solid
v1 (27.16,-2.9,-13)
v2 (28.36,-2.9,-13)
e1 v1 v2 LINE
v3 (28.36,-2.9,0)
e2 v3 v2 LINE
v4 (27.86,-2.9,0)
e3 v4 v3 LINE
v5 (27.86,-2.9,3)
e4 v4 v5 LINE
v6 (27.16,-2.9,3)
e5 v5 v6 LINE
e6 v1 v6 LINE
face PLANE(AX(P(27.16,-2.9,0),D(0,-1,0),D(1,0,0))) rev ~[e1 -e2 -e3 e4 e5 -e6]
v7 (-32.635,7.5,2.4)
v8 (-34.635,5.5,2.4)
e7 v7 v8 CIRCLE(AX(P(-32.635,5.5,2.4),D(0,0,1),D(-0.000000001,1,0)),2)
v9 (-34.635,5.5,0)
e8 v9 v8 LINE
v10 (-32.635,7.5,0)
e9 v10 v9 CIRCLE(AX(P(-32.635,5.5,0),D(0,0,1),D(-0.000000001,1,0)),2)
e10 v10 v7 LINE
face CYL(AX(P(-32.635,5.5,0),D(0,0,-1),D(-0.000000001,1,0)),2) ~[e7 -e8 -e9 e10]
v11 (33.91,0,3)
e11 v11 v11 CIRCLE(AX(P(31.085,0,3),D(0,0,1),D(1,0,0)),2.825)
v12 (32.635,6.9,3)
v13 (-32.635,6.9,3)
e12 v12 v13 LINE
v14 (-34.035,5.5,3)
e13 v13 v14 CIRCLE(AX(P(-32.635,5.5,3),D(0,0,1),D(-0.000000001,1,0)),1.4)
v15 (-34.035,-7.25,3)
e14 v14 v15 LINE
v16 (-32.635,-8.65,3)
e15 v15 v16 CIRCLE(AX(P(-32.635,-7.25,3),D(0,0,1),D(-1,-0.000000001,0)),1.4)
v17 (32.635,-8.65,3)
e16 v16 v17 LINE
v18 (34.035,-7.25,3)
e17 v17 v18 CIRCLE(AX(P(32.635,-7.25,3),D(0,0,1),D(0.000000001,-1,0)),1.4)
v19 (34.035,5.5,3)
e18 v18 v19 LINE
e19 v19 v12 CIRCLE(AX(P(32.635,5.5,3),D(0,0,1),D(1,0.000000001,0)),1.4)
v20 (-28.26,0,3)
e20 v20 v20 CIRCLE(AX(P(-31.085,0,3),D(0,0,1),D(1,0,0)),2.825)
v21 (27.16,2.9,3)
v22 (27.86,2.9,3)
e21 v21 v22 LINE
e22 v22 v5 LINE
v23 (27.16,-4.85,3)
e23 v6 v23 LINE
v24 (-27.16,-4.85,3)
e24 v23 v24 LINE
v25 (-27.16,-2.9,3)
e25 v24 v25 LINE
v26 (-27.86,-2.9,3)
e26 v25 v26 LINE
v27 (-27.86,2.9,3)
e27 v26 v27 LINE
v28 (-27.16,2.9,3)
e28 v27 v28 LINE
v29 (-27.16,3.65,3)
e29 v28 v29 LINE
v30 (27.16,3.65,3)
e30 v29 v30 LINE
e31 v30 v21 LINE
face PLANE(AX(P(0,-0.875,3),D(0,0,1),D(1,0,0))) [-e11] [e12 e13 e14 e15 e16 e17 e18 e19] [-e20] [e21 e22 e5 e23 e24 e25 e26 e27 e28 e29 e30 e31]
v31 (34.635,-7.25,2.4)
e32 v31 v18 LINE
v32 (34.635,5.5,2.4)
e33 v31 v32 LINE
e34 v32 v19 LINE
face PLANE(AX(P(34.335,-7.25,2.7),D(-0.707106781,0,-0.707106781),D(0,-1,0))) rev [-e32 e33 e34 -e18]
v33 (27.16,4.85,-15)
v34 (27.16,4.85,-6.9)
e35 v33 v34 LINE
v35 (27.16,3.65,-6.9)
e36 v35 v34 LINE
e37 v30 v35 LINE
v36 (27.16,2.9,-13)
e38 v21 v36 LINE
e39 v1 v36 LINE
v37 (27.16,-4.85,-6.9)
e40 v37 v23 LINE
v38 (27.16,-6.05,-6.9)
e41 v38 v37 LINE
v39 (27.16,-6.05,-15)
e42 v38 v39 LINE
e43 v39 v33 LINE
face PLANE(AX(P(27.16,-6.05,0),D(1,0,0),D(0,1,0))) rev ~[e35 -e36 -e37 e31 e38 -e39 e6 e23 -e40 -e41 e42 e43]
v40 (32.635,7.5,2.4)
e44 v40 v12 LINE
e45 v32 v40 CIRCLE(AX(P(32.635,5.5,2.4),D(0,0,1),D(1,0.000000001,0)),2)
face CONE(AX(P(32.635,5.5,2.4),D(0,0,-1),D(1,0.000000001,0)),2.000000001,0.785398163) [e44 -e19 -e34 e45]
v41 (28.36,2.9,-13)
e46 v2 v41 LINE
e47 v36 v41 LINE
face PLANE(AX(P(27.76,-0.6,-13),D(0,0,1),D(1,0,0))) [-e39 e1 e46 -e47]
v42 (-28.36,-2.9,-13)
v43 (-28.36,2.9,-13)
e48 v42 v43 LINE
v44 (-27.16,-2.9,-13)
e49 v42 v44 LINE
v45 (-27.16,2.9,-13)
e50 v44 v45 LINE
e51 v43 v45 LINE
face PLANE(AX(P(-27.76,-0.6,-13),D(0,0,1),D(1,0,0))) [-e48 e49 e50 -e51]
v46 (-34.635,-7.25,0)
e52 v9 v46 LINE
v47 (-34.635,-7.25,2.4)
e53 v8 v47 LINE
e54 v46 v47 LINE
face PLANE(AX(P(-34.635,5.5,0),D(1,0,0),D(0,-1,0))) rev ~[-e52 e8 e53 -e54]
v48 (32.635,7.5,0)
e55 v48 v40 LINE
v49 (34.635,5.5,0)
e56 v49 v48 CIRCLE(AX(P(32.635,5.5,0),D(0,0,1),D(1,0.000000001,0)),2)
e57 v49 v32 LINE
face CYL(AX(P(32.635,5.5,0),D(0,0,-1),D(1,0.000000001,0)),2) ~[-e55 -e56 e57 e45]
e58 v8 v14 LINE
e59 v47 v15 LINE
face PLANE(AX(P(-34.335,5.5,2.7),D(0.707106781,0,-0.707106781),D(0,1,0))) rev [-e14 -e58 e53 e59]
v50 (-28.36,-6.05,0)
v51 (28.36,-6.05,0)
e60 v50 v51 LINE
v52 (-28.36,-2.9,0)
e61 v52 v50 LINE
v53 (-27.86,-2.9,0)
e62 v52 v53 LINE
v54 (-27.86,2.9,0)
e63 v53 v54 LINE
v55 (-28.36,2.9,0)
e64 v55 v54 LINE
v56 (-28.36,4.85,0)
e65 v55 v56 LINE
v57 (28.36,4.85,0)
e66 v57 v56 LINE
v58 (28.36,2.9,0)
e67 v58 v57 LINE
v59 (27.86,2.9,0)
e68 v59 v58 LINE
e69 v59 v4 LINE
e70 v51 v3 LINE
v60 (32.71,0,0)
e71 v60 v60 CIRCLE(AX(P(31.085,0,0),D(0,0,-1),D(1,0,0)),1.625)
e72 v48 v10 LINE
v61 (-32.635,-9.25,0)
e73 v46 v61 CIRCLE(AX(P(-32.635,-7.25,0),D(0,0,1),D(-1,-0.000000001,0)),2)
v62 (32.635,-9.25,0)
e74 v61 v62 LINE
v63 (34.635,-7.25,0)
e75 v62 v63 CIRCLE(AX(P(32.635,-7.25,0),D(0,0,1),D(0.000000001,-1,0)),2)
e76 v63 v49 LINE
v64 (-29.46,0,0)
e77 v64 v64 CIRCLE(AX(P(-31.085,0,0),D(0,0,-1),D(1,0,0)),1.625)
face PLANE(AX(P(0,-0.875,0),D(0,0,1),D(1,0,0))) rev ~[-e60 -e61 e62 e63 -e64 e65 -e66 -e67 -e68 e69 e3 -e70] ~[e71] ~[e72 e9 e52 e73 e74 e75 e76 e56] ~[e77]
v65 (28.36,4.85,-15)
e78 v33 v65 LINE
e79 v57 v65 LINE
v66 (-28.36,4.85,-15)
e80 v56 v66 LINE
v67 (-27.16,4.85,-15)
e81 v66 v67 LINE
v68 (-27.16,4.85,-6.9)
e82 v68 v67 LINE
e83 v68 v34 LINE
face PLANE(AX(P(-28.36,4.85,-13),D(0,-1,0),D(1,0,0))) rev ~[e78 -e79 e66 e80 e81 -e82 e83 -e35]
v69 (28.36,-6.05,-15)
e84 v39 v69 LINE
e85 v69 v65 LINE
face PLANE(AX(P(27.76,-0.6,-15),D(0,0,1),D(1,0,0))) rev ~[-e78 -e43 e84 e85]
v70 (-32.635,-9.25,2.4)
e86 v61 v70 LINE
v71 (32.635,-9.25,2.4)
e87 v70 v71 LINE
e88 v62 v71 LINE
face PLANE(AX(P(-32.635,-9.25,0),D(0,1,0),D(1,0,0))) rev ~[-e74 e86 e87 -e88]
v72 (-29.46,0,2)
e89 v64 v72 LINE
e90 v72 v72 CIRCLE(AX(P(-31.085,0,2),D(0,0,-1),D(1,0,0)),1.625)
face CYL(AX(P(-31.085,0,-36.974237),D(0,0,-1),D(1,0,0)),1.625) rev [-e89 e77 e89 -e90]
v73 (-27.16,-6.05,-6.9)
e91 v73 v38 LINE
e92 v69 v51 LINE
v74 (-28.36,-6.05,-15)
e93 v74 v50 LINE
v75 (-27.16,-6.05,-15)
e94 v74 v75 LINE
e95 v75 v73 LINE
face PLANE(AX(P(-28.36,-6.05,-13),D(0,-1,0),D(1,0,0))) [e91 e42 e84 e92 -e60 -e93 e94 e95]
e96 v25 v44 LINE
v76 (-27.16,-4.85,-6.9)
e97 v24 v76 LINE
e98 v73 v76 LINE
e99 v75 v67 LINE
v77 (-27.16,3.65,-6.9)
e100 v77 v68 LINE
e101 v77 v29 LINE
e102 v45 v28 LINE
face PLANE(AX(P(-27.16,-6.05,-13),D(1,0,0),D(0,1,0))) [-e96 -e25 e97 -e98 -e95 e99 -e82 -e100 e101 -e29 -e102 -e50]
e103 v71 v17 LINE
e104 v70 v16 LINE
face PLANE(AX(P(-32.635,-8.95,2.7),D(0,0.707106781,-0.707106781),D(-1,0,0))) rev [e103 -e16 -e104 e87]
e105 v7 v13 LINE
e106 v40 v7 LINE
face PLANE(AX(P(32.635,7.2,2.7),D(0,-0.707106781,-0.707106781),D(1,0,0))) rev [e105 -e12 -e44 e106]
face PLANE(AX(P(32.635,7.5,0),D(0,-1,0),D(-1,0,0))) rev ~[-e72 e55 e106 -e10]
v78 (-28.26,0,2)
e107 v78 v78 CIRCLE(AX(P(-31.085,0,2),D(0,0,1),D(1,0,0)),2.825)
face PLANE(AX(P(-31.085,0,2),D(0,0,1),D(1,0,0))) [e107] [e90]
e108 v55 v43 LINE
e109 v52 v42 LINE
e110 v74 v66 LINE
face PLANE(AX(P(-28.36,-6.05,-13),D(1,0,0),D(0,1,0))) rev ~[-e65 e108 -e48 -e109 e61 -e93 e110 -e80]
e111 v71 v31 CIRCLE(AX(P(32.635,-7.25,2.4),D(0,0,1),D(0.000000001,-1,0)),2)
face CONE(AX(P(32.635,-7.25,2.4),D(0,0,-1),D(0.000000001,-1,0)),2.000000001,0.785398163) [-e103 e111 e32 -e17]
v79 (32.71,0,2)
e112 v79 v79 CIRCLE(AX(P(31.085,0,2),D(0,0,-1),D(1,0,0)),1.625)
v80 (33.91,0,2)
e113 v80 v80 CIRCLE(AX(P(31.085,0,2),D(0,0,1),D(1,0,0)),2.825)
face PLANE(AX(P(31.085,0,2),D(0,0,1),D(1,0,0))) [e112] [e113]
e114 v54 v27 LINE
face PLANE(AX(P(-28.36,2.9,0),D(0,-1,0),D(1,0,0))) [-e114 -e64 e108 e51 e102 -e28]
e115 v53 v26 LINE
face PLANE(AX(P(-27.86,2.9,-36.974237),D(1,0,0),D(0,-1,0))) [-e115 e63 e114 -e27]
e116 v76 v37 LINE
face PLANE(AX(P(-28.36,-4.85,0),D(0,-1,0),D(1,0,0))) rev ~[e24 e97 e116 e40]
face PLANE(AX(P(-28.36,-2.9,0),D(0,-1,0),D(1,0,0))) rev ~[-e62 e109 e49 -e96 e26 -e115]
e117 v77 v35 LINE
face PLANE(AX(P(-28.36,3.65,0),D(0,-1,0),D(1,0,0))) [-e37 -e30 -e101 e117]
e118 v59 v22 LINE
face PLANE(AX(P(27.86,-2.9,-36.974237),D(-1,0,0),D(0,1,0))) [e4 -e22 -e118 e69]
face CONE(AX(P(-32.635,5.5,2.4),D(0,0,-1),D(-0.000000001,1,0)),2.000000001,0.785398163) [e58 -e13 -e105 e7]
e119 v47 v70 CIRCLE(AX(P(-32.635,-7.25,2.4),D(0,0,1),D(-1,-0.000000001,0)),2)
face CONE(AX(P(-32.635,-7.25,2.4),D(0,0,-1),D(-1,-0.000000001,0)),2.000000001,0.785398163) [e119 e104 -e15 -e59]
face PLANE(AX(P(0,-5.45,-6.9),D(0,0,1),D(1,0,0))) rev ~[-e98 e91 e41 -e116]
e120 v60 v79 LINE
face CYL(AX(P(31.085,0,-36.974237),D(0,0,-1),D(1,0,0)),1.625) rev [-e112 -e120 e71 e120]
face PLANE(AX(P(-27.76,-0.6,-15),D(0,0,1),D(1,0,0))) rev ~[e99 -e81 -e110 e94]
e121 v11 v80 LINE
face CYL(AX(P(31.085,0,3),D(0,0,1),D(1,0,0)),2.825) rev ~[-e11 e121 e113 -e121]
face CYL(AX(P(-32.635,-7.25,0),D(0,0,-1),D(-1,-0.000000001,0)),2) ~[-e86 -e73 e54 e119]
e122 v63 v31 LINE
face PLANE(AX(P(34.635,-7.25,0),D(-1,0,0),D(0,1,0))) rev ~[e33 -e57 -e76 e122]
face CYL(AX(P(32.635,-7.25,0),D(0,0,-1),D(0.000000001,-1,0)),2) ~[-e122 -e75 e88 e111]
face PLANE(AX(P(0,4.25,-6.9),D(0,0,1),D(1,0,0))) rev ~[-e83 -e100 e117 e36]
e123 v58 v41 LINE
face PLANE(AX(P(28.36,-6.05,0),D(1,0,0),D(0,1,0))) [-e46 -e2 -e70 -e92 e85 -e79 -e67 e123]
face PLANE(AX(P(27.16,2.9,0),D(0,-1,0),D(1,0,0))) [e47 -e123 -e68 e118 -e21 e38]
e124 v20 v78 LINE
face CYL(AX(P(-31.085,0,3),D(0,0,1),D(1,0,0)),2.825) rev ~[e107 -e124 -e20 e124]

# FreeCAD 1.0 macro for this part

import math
import FreeCAD as App
import Part
import Sketcher
from FreeCAD import Vector


def edges_at(feature, points):
    """Names of the edges that pass closest to the given points."""
    edges = feature.Shape.Edges
    near = lambda p: min(range(len(edges)), key=lambda i: edges[i].distToShape(Part.Vertex(*p))[0])
    return sorted({f"Edge{near(p) + 1}" for p in points})


def add_polygon(sketch, points):
    """Adds a closed chain of lines whose ends are joined by coincident constraints."""
    first, n = sketch.GeometryCount, len(points)
    for a, b in zip(points, points[1:] + points[:1]):
        sketch.addGeometry(Part.LineSegment(App.Vector(*a, 0), App.Vector(*b, 0)), False)
    for i in range(n):
        sketch.addConstraint(Sketcher.Constraint("Coincident", first + i, 2, first + (i + 1) % n, 1))

doc = App.newDocument("Part")
body = doc.addObject("PartDesign::Body", "Body")

# Sketch on XY plane
sketch1 = body.newObject("Sketcher::SketchObject", "Sketch")
sketch1.AttachmentSupport = (doc.getObject("XY_Plane"), [""])
sketch1.MapMode = "FlatFace"
sketch1.addGeometry([
    Part.LineSegment(Vector(-32.6, -9.2, 0), Vector(32.6, -9.2, 0)),  # 0
    Part.ArcOfCircle(Part.Circle(Vector(32.6, -7.2, 0), Vector(0, 0, 1), 2), math.radians(-90), math.radians(0)),  # 1
    Part.LineSegment(Vector(34.6, -7.2, 0), Vector(34.6, 5.5, 0)),  # 2
    Part.ArcOfCircle(Part.Circle(Vector(32.6, 5.5, 0), Vector(0, 0, 1), 2), math.radians(0), math.radians(90)),  # 3
    Part.LineSegment(Vector(32.6, 7.5, 0), Vector(-32.6, 7.5, 0)),  # 4
    Part.ArcOfCircle(Part.Circle(Vector(-32.6, 5.5, 0), Vector(0, 0, 1), 2), math.radians(90), math.radians(180)),  # 5
    Part.LineSegment(Vector(-34.6, 5.5, 0), Vector(-34.6, -7.2, 0)),  # 6
    Part.ArcOfCircle(Part.Circle(Vector(-32.6, -7.2, 0), Vector(0, 0, 1), 2), math.radians(-180), math.radians(-90)),  # 7
], False)
sketch1.addConstraint([
    Sketcher.Constraint("Tangent", 0, 2, 1, 1),
    Sketcher.Constraint("Tangent", 1, 2, 2, 1),
    Sketcher.Constraint("Tangent", 2, 2, 3, 1),
    Sketcher.Constraint("Tangent", 3, 2, 4, 1),
    Sketcher.Constraint("Tangent", 4, 2, 5, 1),
    Sketcher.Constraint("Tangent", 5, 2, 6, 1),
    Sketcher.Constraint("Tangent", 6, 2, 7, 1),
    Sketcher.Constraint("Tangent", 7, 2, 0, 1),
    Sketcher.Constraint("Horizontal", 0),
    Sketcher.Constraint("Vertical", 2),
    Sketcher.Constraint("Horizontal", 4),
    Sketcher.Constraint("Vertical", 6),
    Sketcher.Constraint("Equal", 1, 3),
    Sketcher.Constraint("Equal", 3, 5),
    Sketcher.Constraint("Equal", 5, 7),
    Sketcher.Constraint("Radius", 1, 2.0),
    Sketcher.Constraint("DistanceX", 0, 1, 0, 2, 65.27),
    Sketcher.Constraint("DistanceY", 2, 1, 2, 2, 12.75),
    Sketcher.Constraint("DistanceY", -1, 1, 3, 3, 5.5),
    Sketcher.Constraint("DistanceX", -1, 1, 1, 3, 32.635),
])
pad1 = body.newObject("PartDesign::Pad", "Pad")
pad1.Profile = sketch1
pad1.Length = 3
doc.recompute()

chamfer = body.newObject("PartDesign::Chamfer", "Chamfer")
chamfer.Base = (pad1, edges_at(pad1, [
    (34.049, -8.664, 3),
    (34.635, -0.875, 3),
    (34.049, 6.914, 3),
    (0, 7.5, 3),
    (-34.049, 6.914, 3),
    (-34.635, -0.875, 3),
    (-34.049, -8.664, 3),
    (0, -9.25, 3),
]))
chamfer.Size = 0.6

# Sketch on XY plane
sketch2 = body.newObject("Sketcher::SketchObject", "Sketch001")
sketch2.AttachmentSupport = (doc.getObject("XY_Plane"), [""])
sketch2.MapMode = "FlatFace"
sketch2.addGeometry(Part.Circle(Vector(-31.1, 0, 0), Vector(0, 0, 1), 1.6), False)  # 0
sketch2.addGeometry(Part.Circle(Vector(31.1, 0, 0), Vector(0, 0, 1), 1.6), False)  # 1
add_polygon(sketch2, [(-27.2, -4.8), (27.2, -4.8), (27.2, -2.9), (27.9, -2.9), (27.9, 2.9), (27.2, 2.9), (27.2, 3.6), (-27.2, 3.6), (-27.2, 2.9), (-27.9, 2.9), (-27.9, -2.9), (-27.2, -2.9)])  # lines 2-13
sketch2.addConstraint([
    Sketcher.Constraint("Horizontal", 2),
    Sketcher.Constraint("Vertical", 3),
    Sketcher.Constraint("Horizontal", 4),
    Sketcher.Constraint("Vertical", 5),
    Sketcher.Constraint("Horizontal", 6),
    Sketcher.Constraint("Vertical", 7),
    Sketcher.Constraint("Horizontal", 8),
    Sketcher.Constraint("Vertical", 9),
    Sketcher.Constraint("Horizontal", 10),
    Sketcher.Constraint("Vertical", 11),
    Sketcher.Constraint("Horizontal", 12),
    Sketcher.Constraint("Vertical", 13),
    Sketcher.Constraint("Equal", 0, 1),
    Sketcher.Constraint("Symmetric", 0, 3, 1, 3, -1, 1),
    Sketcher.Constraint("Symmetric", 3, 2, 9, 2, -1, 1),
    Sketcher.Constraint("Symmetric", 5, 2, 11, 2, -1, 1),
    Sketcher.Constraint("Symmetric", 6, 2, 9, 2, -2),
    Sketcher.Constraint("PointOnObject", 0, 3, -1),
    Sketcher.Constraint("Vertical", 9, 2, 12, 2),
    Sketcher.Constraint("Diameter", 0, 3.25),
    Sketcher.Constraint("DistanceX", 4, 1, 4, 2, 0.7),
    Sketcher.Constraint("DistanceY", 5, 1, 5, 2, 5.8),
    Sketcher.Constraint("DistanceX", 2, 1, 2, 2, 54.32),
    Sketcher.Constraint("DistanceY", 3, 1, 3, 2, 1.95),
    Sketcher.Constraint("DistanceY", 7, 1, 7, 2, 0.75),
    Sketcher.Constraint("DistanceX", 0, 3, 1, 3, 62.17),
])
pocket1 = body.newObject("PartDesign::Pocket", "Pocket")
pocket1.Profile = sketch2
pocket1.Type = "ThroughAll"
pocket1.Midplane = True

# Sketch on XY plane
sketch3 = body.newObject("Sketcher::SketchObject", "Sketch002")
sketch3.AttachmentSupport = (doc.getObject("XY_Plane"), [""])
sketch3.MapMode = "FlatFace"
sketch3.AttachmentOffset = App.Placement(Vector(0, 0, 3), App.Rotation())
sketch3.addGeometry([
    Part.Circle(Vector(-31.1, 0, 0), Vector(0, 0, 1), 2.8),
    Part.Circle(Vector(31.1, 0, 0), Vector(0, 0, 1), 2.8),
], False)
sketch3.addConstraint([
    Sketcher.Constraint("Equal", 0, 1),
    Sketcher.Constraint("Symmetric", 0, 3, 1, 3, -1, 1),
    Sketcher.Constraint("PointOnObject", 0, 3, -1),
    Sketcher.Constraint("Diameter", 0, 5.65),
    Sketcher.Constraint("DistanceX", 0, 3, 1, 3, 62.17),
])
pocket2 = body.newObject("PartDesign::Pocket", "Pocket001")
pocket2.Profile = sketch3
pocket2.Length = 1

# Sketch on XY plane
sketch4 = body.newObject("Sketcher::SketchObject", "Sketch003")
sketch4.AttachmentSupport = (doc.getObject("XY_Plane"), [""])
sketch4.MapMode = "FlatFace"
add_polygon(sketch4, [(-28.4, 4.8), (-28.4, 3.6), (28.4, 3.6), (28.4, 4.8)])  # lines 0-3
add_polygon(sketch4, [(-28.4, -4.8), (-28.4, -6), (28.4, -6), (28.4, -4.8)])  # lines 4-7
sketch4.addConstraint([
    Sketcher.Constraint("Vertical", 0),
    Sketcher.Constraint("Horizontal", 1),
    Sketcher.Constraint("Vertical", 2),
    Sketcher.Constraint("Horizontal", 3),
    Sketcher.Constraint("Vertical", 4),
    Sketcher.Constraint("Horizontal", 5),
    Sketcher.Constraint("Vertical", 6),
    Sketcher.Constraint("Horizontal", 7),
    Sketcher.Constraint("Symmetric", 3, 2, 6, 2, -1, 1),
    Sketcher.Constraint("Vertical", 3, 2, 4, 2),
    Sketcher.Constraint("Vertical", 2, 2, 5, 2),
    Sketcher.Constraint("Equal", 2, 4),
    Sketcher.Constraint("DistanceY", 0, 2, 0, 1, 1.2),
    Sketcher.Constraint("DistanceX", 1, 1, 1, 2, 56.72),
    Sketcher.Constraint("DistanceY", 4, 2, 0, 2, 9.7),
])
pad2 = body.newObject("PartDesign::Pad", "Pad001")
pad2.Profile = sketch4
pad2.Length = 6.9
pad2.Reversed = True

# Sketch on XY plane
sketch5 = body.newObject("Sketcher::SketchObject", "Sketch004")
sketch5.AttachmentSupport = (doc.getObject("XY_Plane"), [""])
sketch5.MapMode = "FlatFace"
add_polygon(sketch5, [(-28.4, 4.8), (-28.4, 2.9), (-27.2, 2.9), (-27.2, 4.8)])  # lines 0-3
add_polygon(sketch5, [(-28.4, -2.9), (-28.4, -6), (-27.2, -6), (-27.2, -2.9)])  # lines 4-7
add_polygon(sketch5, [(27.2, 4.8), (27.2, 2.9), (28.4, 2.9), (28.4, 4.8)])  # lines 8-11
add_polygon(sketch5, [(27.2, -2.9), (27.2, -6), (28.4, -6), (28.4, -2.9)])  # lines 12-15
sketch5.addConstraint([
    Sketcher.Constraint("Vertical", 0),
    Sketcher.Constraint("Horizontal", 1),
    Sketcher.Constraint("Vertical", 2),
    Sketcher.Constraint("Horizontal", 3),
    Sketcher.Constraint("Vertical", 4),
    Sketcher.Constraint("Horizontal", 5),
    Sketcher.Constraint("Vertical", 6),
    Sketcher.Constraint("Horizontal", 7),
    Sketcher.Constraint("Vertical", 8),
    Sketcher.Constraint("Horizontal", 9),
    Sketcher.Constraint("Vertical", 10),
    Sketcher.Constraint("Horizontal", 11),
    Sketcher.Constraint("Vertical", 12),
    Sketcher.Constraint("Horizontal", 13),
    Sketcher.Constraint("Vertical", 14),
    Sketcher.Constraint("Horizontal", 15),
    Sketcher.Constraint("Symmetric", 6, 2, 8, 2, -1, 1),
    Sketcher.Constraint("Symmetric", 0, 2, 14, 2, -1, 1),
    Sketcher.Constraint("Symmetric", 1, 2, 8, 2, -2),
    Sketcher.Constraint("Symmetric", 3, 2, 10, 2, -2),
    Sketcher.Constraint("Symmetric", 5, 2, 12, 2, -2),
    Sketcher.Constraint("Vertical", 3, 2, 4, 2),
    Sketcher.Constraint("DistanceX", 1, 1, 1, 2, 1.2),
    Sketcher.Constraint("DistanceY", 0, 2, 0, 1, 1.95),
    Sketcher.Constraint("DistanceY", 4, 2, 4, 1, 3.15),
    Sketcher.Constraint("DistanceY", -1, 1, 0, 2, 2.9),
    Sketcher.Constraint("DistanceX", 0, 2, -1, 1, 28.36),
])
pad3 = body.newObject("PartDesign::Pad", "Pad002")
pad3.Profile = sketch5
pad3.Length = 13
pad3.Reversed = True

# Sketch on XY plane
sketch6 = body.newObject("Sketcher::SketchObject", "Sketch005")
sketch6.AttachmentSupport = (doc.getObject("XY_Plane"), [""])
sketch6.MapMode = "FlatFace"
sketch6.AttachmentOffset = App.Placement(Vector(0, 0, -13), App.Rotation())
add_polygon(sketch6, [(-28.4, 4.8), (-28.4, -6), (-27.2, -6), (-27.2, 4.8)])  # lines 0-3
add_polygon(sketch6, [(27.2, 4.8), (27.2, -6), (28.4, -6), (28.4, 4.8)])  # lines 4-7
sketch6.addConstraint([
    Sketcher.Constraint("Vertical", 0),
    Sketcher.Constraint("Horizontal", 1),
    Sketcher.Constraint("Vertical", 2),
    Sketcher.Constraint("Horizontal", 3),
    Sketcher.Constraint("Vertical", 4),
    Sketcher.Constraint("Horizontal", 5),
    Sketcher.Constraint("Vertical", 6),
    Sketcher.Constraint("Horizontal", 7),
    Sketcher.Constraint("Symmetric", 1, 2, 4, 2, -2),
    Sketcher.Constraint("Symmetric", 3, 2, 6, 2, -2),
    Sketcher.Constraint("DistanceX", 1, 1, 1, 2, 1.2),
    Sketcher.Constraint("DistanceY", 0, 2, 0, 1, 10.9),
    Sketcher.Constraint("DistanceX", 0, 2, -1, 1, 28.36),
    Sketcher.Constraint("DistanceY", 0, 2, -1, 1, 6.05),
])
pad4 = body.newObject("PartDesign::Pad", "Pad003")
pad4.Profile = sketch6
pad4.Length = 2
pad4.Reversed = True

doc.recompute()
